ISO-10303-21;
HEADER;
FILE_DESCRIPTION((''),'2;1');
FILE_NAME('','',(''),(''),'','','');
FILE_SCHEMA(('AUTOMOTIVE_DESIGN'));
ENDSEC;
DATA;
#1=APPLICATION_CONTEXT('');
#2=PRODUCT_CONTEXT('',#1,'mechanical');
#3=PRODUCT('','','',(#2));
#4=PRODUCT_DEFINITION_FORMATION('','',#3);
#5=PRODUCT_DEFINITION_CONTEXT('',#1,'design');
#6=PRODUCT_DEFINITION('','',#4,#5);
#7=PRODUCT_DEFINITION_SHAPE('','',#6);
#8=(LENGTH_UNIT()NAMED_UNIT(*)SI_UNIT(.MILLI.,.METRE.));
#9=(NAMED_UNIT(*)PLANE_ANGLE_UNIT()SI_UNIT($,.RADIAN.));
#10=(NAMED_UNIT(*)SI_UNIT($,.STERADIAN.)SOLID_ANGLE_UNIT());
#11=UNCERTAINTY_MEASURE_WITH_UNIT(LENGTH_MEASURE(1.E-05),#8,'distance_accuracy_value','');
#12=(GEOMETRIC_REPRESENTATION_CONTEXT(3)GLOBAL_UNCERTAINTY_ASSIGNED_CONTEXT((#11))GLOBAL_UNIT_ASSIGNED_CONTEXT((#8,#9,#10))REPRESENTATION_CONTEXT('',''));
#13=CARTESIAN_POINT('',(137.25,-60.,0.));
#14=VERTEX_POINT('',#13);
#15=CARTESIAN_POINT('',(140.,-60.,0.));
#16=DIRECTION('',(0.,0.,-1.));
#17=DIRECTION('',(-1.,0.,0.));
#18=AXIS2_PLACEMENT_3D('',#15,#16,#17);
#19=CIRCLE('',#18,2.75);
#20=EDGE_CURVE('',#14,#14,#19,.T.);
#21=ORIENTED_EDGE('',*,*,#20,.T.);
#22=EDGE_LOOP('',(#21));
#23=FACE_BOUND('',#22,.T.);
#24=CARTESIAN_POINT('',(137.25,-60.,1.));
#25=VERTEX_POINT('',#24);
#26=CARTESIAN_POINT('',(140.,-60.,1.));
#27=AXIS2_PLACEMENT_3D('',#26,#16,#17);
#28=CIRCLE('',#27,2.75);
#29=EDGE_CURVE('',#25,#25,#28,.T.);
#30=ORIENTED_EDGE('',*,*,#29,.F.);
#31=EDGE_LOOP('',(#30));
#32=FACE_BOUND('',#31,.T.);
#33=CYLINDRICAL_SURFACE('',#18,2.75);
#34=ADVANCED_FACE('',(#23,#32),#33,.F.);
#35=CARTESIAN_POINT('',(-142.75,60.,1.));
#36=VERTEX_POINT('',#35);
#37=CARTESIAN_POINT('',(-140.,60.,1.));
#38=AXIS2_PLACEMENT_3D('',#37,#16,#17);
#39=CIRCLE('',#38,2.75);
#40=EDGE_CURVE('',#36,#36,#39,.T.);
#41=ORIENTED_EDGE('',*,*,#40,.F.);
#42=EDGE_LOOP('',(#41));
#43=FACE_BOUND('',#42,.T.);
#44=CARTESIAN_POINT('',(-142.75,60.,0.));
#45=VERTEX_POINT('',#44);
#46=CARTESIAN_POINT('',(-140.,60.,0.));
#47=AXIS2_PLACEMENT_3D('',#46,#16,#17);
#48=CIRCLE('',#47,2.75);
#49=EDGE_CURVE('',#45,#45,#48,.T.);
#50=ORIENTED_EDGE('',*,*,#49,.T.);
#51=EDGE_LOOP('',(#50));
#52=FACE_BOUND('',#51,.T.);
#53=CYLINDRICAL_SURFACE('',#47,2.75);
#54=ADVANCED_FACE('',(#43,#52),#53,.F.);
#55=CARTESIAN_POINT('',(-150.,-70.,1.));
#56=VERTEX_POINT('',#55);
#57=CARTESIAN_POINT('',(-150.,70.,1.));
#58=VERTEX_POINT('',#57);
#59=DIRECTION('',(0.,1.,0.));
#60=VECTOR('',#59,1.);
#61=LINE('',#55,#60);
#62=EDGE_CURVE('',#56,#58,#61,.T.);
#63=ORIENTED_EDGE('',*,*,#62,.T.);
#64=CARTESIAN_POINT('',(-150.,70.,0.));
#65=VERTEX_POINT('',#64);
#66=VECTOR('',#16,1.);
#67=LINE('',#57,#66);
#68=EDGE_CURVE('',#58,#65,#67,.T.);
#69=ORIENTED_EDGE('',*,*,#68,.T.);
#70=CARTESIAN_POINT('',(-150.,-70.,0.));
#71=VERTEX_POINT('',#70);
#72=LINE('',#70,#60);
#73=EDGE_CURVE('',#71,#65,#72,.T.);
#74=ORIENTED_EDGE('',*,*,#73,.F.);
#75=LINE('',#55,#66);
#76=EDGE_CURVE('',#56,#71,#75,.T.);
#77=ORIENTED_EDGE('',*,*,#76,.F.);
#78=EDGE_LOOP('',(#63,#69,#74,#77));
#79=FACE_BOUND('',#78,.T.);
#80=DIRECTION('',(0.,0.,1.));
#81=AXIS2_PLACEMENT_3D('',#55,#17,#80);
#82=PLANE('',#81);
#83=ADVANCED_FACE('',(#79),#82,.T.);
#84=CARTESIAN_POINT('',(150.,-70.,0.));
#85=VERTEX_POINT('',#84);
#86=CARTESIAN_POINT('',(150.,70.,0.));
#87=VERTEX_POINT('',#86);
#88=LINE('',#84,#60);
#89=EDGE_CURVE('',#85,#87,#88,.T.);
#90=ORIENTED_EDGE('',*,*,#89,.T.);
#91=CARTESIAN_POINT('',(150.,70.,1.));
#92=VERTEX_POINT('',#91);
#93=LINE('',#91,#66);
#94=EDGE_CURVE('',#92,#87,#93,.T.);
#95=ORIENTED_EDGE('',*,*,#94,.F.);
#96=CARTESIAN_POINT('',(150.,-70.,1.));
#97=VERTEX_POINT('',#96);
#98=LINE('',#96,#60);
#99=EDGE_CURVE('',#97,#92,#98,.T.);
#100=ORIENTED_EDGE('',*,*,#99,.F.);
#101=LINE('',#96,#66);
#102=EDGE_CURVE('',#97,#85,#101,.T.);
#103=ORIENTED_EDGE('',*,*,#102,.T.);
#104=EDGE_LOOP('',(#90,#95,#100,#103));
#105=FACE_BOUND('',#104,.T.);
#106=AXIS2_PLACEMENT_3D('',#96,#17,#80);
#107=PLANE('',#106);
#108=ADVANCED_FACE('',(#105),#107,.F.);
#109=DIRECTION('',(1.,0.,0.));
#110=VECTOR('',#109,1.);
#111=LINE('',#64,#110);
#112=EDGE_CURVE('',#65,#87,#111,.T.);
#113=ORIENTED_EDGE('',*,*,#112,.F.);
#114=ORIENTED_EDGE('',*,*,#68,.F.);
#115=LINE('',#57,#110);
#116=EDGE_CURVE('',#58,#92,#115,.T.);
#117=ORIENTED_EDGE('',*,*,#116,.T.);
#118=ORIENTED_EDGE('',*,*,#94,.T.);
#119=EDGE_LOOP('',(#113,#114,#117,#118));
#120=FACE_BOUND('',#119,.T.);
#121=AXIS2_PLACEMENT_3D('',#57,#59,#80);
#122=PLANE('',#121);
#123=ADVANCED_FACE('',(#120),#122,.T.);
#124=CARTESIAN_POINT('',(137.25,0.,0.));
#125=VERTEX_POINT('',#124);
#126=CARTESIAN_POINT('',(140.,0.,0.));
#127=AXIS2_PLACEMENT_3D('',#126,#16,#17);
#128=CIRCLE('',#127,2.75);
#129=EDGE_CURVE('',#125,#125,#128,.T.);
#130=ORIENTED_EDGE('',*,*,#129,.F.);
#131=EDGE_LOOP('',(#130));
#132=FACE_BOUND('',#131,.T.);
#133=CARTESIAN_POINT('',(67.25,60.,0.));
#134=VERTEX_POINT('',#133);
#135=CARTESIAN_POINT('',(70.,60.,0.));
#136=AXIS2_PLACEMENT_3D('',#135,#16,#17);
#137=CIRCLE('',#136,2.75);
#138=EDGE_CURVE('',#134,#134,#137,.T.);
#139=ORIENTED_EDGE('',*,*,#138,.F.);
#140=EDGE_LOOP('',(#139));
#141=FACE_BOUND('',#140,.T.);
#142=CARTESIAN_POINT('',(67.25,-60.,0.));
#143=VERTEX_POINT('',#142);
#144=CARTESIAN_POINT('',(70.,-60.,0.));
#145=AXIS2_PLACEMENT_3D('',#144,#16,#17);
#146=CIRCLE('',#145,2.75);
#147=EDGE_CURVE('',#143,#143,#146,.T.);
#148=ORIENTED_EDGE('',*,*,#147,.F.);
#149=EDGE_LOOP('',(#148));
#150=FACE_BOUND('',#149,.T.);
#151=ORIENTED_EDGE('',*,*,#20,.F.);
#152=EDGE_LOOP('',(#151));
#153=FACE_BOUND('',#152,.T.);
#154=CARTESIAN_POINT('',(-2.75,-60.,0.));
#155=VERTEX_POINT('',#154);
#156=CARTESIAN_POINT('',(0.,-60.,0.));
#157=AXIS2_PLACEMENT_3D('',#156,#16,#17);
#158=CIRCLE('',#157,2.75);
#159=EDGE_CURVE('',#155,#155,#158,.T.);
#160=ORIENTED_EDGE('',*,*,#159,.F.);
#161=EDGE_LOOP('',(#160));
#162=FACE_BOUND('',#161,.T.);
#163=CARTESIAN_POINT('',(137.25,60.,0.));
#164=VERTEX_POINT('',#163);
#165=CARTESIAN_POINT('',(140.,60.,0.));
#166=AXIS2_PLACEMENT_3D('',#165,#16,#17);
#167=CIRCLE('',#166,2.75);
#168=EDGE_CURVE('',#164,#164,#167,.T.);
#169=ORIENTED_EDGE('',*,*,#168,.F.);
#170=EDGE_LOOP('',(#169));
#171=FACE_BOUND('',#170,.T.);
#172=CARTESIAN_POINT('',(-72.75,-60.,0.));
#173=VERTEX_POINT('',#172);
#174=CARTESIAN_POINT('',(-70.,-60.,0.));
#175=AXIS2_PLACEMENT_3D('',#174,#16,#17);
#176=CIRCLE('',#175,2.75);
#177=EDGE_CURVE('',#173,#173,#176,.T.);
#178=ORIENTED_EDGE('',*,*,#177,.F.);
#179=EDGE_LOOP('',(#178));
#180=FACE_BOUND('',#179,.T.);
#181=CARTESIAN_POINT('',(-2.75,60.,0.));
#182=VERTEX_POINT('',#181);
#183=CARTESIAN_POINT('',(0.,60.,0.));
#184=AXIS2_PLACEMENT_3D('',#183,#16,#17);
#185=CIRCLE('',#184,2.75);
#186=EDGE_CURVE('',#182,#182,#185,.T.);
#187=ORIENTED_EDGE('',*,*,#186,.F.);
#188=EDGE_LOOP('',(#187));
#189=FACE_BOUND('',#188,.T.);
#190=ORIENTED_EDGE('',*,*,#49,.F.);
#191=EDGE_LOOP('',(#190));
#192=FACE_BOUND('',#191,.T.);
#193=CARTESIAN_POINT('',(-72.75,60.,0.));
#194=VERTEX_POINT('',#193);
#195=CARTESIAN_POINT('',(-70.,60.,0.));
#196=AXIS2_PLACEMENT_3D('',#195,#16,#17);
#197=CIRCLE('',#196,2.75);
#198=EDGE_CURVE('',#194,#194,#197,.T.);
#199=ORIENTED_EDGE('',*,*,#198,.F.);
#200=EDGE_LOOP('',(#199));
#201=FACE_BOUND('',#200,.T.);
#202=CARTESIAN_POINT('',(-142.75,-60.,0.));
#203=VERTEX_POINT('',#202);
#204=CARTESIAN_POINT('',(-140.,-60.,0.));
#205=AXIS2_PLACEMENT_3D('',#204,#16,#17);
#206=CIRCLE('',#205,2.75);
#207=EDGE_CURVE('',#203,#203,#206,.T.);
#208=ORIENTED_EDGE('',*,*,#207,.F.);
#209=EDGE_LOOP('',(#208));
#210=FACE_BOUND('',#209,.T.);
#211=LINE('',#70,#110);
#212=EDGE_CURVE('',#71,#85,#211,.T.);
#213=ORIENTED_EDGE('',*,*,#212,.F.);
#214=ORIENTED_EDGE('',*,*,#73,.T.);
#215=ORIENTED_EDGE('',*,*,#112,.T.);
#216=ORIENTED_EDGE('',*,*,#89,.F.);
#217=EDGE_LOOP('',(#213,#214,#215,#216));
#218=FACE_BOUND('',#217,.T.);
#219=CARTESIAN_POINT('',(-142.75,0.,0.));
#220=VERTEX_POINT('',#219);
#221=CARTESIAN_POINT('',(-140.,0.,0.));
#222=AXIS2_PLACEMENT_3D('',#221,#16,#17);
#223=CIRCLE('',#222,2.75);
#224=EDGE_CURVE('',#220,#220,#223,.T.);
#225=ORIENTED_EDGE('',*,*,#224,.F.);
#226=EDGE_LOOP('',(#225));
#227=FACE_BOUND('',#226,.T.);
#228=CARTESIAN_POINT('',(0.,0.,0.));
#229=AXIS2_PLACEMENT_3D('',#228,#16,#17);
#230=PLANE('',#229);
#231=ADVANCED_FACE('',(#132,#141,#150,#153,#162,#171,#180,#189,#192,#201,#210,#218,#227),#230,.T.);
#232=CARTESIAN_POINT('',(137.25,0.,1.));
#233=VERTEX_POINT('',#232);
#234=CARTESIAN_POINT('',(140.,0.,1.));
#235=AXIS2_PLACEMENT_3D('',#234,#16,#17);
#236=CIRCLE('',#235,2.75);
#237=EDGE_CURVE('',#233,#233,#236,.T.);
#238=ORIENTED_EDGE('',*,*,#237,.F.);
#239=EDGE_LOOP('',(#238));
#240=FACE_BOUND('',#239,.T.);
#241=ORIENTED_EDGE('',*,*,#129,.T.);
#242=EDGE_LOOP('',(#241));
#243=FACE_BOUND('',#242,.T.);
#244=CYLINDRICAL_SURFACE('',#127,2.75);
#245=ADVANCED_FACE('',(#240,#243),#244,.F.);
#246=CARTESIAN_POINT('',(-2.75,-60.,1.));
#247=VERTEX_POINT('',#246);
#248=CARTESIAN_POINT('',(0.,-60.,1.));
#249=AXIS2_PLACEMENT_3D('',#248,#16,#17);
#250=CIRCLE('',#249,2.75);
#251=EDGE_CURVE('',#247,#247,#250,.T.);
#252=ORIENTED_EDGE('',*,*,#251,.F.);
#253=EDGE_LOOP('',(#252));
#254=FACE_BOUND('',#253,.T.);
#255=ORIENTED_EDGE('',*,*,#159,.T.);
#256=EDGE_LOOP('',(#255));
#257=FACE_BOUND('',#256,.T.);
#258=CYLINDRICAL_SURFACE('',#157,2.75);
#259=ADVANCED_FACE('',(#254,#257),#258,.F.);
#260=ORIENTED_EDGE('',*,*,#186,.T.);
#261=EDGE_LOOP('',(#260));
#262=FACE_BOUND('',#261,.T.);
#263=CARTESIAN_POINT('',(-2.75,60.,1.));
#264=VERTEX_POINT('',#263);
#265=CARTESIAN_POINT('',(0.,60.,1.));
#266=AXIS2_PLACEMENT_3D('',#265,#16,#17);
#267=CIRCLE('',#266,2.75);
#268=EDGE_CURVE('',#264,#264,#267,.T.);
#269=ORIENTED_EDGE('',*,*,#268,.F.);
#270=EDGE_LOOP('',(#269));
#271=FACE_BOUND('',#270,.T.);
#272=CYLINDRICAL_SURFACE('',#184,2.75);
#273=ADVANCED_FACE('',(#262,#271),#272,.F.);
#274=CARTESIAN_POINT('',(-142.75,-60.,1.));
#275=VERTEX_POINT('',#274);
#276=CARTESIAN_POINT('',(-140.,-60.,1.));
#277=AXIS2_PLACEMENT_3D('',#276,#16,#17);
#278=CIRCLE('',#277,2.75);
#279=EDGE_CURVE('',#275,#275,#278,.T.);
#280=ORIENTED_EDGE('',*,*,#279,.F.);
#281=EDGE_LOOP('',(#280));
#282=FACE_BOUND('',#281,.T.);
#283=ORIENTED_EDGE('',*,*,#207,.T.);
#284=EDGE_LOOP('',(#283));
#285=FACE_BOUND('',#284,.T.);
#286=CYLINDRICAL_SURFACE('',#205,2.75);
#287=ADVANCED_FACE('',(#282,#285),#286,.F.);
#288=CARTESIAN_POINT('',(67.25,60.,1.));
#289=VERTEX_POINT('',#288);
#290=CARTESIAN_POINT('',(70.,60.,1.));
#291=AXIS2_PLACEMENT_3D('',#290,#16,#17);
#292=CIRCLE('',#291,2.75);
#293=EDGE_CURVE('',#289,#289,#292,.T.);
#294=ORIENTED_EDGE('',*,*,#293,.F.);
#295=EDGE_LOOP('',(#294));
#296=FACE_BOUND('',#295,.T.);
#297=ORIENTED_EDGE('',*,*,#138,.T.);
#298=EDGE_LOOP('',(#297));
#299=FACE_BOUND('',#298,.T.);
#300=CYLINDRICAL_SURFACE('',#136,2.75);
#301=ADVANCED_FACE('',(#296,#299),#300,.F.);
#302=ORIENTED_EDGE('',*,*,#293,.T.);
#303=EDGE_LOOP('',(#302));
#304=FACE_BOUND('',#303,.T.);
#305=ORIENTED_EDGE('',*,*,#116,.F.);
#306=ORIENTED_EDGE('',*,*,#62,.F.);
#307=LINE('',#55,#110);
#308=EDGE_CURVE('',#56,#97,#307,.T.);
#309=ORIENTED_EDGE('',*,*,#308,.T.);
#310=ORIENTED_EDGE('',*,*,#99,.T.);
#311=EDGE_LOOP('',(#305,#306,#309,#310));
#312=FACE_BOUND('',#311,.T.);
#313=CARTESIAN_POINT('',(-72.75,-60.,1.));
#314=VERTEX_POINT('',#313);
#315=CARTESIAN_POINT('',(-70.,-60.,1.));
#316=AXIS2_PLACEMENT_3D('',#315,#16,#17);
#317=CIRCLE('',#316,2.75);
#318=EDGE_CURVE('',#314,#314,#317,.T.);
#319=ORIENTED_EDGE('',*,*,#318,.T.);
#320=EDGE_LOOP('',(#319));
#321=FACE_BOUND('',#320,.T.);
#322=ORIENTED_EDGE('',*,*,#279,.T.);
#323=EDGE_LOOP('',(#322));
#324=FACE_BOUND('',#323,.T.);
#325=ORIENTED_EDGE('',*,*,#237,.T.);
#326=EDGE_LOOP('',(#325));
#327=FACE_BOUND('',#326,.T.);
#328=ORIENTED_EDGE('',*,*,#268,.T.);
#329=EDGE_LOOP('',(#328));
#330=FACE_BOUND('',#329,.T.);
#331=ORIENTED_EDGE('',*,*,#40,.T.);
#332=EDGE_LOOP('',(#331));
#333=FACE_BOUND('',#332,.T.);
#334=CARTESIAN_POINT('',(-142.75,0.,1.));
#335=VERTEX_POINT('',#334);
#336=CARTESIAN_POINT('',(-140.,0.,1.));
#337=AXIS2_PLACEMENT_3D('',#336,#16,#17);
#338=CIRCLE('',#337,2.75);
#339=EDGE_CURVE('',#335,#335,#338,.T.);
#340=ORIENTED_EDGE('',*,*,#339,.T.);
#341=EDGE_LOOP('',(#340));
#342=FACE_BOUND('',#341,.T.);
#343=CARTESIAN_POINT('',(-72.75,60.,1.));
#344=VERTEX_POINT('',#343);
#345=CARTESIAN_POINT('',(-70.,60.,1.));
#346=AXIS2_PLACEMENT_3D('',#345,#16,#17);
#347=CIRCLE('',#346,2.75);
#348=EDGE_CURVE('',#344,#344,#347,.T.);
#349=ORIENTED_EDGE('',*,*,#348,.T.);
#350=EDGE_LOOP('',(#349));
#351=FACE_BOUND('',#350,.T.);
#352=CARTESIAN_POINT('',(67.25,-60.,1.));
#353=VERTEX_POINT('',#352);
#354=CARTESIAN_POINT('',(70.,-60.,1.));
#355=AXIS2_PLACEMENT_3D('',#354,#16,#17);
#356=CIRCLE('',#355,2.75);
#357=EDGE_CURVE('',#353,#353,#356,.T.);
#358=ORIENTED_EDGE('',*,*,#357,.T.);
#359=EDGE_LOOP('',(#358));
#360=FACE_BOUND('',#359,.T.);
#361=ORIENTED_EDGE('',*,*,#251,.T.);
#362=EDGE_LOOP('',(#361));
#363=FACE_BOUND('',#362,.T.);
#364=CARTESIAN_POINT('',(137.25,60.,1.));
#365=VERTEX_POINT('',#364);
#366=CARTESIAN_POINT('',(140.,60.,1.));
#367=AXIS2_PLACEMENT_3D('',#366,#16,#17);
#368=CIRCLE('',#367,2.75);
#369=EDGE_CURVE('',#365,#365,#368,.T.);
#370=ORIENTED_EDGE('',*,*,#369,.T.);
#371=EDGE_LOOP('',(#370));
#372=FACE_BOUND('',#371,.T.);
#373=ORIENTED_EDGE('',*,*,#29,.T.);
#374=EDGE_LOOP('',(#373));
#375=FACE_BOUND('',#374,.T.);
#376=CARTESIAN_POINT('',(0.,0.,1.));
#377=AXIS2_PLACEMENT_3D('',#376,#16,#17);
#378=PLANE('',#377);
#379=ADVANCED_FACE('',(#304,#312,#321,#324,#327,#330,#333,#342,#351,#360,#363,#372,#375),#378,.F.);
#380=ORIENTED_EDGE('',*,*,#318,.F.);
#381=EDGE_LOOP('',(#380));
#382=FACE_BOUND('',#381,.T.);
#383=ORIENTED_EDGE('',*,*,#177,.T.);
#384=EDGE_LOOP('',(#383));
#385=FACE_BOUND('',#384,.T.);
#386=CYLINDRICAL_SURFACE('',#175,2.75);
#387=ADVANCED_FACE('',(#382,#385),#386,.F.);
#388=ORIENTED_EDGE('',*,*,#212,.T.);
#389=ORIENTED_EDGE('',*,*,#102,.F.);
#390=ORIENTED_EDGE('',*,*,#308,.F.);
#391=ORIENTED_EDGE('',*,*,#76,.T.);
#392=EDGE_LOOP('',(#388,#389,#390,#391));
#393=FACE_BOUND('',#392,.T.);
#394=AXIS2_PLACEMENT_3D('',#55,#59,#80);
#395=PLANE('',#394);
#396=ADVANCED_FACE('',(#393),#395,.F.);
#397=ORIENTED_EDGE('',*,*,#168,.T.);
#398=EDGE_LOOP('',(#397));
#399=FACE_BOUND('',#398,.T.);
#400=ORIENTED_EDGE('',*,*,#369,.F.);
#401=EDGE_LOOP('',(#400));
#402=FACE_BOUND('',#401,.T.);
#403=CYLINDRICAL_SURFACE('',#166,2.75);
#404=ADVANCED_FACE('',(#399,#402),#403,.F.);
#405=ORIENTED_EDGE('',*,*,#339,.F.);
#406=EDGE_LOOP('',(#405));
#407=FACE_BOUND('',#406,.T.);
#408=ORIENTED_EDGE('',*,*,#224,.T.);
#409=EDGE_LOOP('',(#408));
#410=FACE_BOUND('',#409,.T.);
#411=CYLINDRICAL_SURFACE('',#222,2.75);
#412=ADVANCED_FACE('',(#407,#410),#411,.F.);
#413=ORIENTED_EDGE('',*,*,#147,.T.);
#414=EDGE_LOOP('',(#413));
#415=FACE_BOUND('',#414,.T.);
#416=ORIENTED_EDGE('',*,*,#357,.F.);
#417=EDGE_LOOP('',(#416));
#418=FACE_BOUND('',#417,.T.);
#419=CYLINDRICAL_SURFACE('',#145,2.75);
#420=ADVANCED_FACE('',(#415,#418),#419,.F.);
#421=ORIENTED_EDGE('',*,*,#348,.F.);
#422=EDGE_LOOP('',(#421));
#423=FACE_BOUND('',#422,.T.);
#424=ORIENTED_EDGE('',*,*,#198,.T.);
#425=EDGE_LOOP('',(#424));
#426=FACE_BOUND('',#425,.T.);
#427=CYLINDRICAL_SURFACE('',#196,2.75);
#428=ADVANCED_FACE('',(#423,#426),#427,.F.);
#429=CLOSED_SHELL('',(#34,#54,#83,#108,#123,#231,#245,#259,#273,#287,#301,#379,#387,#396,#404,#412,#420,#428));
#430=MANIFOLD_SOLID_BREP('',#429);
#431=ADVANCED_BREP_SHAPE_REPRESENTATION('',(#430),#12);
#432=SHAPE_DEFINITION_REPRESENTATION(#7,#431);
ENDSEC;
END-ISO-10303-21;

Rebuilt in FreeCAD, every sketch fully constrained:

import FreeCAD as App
import Part
import Sketcher
Q = App.Units.Quantity


def add_polygon(sketch, points):
    """Adds a closed chain of lines whose ends are joined by coincident constraints."""
    first, n = sketch.GeometryCount, len(points)
    for a, b in zip(points, points[1:] + points[:1]):
        sketch.addGeometry(Part.LineSegment(App.Vector(*a, 0), App.Vector(*b, 0)), False)
    for i in range(n):
        sketch.addConstraint(Sketcher.Constraint("Coincident", first + i, 2, first + (i + 1) % n, 1))

doc = App.newDocument("Part")
body = doc.addObject("PartDesign::Body", "Body")

# Sketch on XY plane
sketch1 = doc.addObject("Sketcher::SketchObject", "Sketch")
body.addObject(sketch1)
sketch1.AttachmentSupport = (doc.XY_Plane, [""])
sketch1.MapMode = "FlatFace"
add_polygon(sketch1, [(-150, 70), (-150, -70), (150, -70), (150, 70)])  # lines 0-3
sketch1.addConstraint([
    Sketcher.Constraint("Vertical", 0),
    Sketcher.Constraint("Horizontal", 1),
    Sketcher.Constraint("Vertical", 2),
    Sketcher.Constraint("Horizontal", 3),
    Sketcher.Constraint("Symmetric", 0, 2, 2, 2, -1, 1),
    Sketcher.Constraint("DistanceX", 1, 1, 1, 2, Q("300 mm")),
    Sketcher.Constraint("DistanceY", 0, 2, 0, 1, Q("140 mm")),
])
pad1 = doc.addObject("PartDesign::Pad", "Pad")
body.addObject(pad1)
pad1.Profile = sketch1
pad1.Length = 1

# Sketch on XY plane
sketch2 = doc.addObject("Sketcher::SketchObject", "Sketch001")
body.addObject(sketch2)
sketch2.AttachmentSupport = (doc.XY_Plane, [""])
sketch2.MapMode = "FlatFace"
sketch2.addGeometry([
    Part.Circle(App.Vector(140, 60, 0), App.Vector(0, 0, 1), 2.75),  # 0
    Part.Circle(App.Vector(70, 60, 0), App.Vector(0, 0, 1), 2.75),  # 1
    Part.Circle(App.Vector(-70, 60, 0), App.Vector(0, 0, 1), 2.75),  # 2
    Part.Circle(App.Vector(0, 60, 0), App.Vector(0, 0, 1), 2.75),  # 3
    Part.Circle(App.Vector(-140, 60, 0), App.Vector(0, 0, 1), 2.75),  # 4
    Part.Circle(App.Vector(-140, 0, 0), App.Vector(0, 0, 1), 2.75),  # 5
    Part.Circle(App.Vector(-140, -60, 0), App.Vector(0, 0, 1), 2.75),  # 6
    Part.Circle(App.Vector(140, 0, 0), App.Vector(0, 0, 1), 2.75),  # 7
    Part.Circle(App.Vector(140, -60, 0), App.Vector(0, 0, 1), 2.75),  # 8
    Part.Circle(App.Vector(70, -60, 0), App.Vector(0, 0, 1), 2.75),  # 9
    Part.Circle(App.Vector(-70, -60, 0), App.Vector(0, 0, 1), 2.75),  # 10
    Part.Circle(App.Vector(0, -60, 0), App.Vector(0, 0, 1), 2.75),  # 11
], False)
sketch2.addConstraint([
    Sketcher.Constraint("Equal", 0, 1),
    Sketcher.Constraint("Equal", 1, 2),
    Sketcher.Constraint("Equal", 2, 3),
    Sketcher.Constraint("Equal", 3, 4),
    Sketcher.Constraint("Equal", 4, 5),
    Sketcher.Constraint("Equal", 5, 6),
    Sketcher.Constraint("Equal", 6, 7),
    Sketcher.Constraint("Equal", 7, 8),
    Sketcher.Constraint("Equal", 8, 9),
    Sketcher.Constraint("Equal", 9, 10),
    Sketcher.Constraint("Equal", 10, 11),
    Sketcher.Constraint("Symmetric", 0, 3, 6, 3, -1, 1),
    Sketcher.Constraint("Symmetric", 5, 3, 7, 3, -1, 1),
    Sketcher.Constraint("Symmetric", 4, 3, 8, 3, -1, 1),
    Sketcher.Constraint("Symmetric", 2, 3, 9, 3, -1, 1),
    Sketcher.Constraint("Symmetric", 1, 3, 10, 3, -1, 1),
    Sketcher.Constraint("Symmetric", 3, 3, 11, 3, -1, 1),
    Sketcher.Constraint("Symmetric", 1, 3, 2, 3, -2),
    Sketcher.Constraint("Symmetric", 0, 3, 4, 3, -2),
    Sketcher.Constraint("PointOnObject", 3, 3, -2),
    Sketcher.Constraint("PointOnObject", 5, 3, -1),
    Sketcher.Constraint("Horizontal", 0, 3, 1, 3),
    Sketcher.Constraint("Horizontal", 2, 3, 3, 3),
    Sketcher.Constraint("Vertical", 4, 3, 5, 3),
    Sketcher.Constraint("Diameter", 0, Q("5.5 mm")),
    Sketcher.Constraint("DistanceX", -1, 1, 0, 3, Q("140 mm")),
    Sketcher.Constraint("DistanceY", -1, 1, 0, 3, Q("60 mm")),
    Sketcher.Constraint("DistanceX", -1, 1, 1, 3, Q("70 mm")),
])
doc.recompute()
hole = doc.addObject("PartDesign::Hole", "Hole")
body.addObject(hole)
hole.Profile = sketch2
hole.ThreadType = "None"
hole.Diameter = 5.5
hole.DepthType = "ThroughAll"
hole.Reversed = True

doc.recompute()
